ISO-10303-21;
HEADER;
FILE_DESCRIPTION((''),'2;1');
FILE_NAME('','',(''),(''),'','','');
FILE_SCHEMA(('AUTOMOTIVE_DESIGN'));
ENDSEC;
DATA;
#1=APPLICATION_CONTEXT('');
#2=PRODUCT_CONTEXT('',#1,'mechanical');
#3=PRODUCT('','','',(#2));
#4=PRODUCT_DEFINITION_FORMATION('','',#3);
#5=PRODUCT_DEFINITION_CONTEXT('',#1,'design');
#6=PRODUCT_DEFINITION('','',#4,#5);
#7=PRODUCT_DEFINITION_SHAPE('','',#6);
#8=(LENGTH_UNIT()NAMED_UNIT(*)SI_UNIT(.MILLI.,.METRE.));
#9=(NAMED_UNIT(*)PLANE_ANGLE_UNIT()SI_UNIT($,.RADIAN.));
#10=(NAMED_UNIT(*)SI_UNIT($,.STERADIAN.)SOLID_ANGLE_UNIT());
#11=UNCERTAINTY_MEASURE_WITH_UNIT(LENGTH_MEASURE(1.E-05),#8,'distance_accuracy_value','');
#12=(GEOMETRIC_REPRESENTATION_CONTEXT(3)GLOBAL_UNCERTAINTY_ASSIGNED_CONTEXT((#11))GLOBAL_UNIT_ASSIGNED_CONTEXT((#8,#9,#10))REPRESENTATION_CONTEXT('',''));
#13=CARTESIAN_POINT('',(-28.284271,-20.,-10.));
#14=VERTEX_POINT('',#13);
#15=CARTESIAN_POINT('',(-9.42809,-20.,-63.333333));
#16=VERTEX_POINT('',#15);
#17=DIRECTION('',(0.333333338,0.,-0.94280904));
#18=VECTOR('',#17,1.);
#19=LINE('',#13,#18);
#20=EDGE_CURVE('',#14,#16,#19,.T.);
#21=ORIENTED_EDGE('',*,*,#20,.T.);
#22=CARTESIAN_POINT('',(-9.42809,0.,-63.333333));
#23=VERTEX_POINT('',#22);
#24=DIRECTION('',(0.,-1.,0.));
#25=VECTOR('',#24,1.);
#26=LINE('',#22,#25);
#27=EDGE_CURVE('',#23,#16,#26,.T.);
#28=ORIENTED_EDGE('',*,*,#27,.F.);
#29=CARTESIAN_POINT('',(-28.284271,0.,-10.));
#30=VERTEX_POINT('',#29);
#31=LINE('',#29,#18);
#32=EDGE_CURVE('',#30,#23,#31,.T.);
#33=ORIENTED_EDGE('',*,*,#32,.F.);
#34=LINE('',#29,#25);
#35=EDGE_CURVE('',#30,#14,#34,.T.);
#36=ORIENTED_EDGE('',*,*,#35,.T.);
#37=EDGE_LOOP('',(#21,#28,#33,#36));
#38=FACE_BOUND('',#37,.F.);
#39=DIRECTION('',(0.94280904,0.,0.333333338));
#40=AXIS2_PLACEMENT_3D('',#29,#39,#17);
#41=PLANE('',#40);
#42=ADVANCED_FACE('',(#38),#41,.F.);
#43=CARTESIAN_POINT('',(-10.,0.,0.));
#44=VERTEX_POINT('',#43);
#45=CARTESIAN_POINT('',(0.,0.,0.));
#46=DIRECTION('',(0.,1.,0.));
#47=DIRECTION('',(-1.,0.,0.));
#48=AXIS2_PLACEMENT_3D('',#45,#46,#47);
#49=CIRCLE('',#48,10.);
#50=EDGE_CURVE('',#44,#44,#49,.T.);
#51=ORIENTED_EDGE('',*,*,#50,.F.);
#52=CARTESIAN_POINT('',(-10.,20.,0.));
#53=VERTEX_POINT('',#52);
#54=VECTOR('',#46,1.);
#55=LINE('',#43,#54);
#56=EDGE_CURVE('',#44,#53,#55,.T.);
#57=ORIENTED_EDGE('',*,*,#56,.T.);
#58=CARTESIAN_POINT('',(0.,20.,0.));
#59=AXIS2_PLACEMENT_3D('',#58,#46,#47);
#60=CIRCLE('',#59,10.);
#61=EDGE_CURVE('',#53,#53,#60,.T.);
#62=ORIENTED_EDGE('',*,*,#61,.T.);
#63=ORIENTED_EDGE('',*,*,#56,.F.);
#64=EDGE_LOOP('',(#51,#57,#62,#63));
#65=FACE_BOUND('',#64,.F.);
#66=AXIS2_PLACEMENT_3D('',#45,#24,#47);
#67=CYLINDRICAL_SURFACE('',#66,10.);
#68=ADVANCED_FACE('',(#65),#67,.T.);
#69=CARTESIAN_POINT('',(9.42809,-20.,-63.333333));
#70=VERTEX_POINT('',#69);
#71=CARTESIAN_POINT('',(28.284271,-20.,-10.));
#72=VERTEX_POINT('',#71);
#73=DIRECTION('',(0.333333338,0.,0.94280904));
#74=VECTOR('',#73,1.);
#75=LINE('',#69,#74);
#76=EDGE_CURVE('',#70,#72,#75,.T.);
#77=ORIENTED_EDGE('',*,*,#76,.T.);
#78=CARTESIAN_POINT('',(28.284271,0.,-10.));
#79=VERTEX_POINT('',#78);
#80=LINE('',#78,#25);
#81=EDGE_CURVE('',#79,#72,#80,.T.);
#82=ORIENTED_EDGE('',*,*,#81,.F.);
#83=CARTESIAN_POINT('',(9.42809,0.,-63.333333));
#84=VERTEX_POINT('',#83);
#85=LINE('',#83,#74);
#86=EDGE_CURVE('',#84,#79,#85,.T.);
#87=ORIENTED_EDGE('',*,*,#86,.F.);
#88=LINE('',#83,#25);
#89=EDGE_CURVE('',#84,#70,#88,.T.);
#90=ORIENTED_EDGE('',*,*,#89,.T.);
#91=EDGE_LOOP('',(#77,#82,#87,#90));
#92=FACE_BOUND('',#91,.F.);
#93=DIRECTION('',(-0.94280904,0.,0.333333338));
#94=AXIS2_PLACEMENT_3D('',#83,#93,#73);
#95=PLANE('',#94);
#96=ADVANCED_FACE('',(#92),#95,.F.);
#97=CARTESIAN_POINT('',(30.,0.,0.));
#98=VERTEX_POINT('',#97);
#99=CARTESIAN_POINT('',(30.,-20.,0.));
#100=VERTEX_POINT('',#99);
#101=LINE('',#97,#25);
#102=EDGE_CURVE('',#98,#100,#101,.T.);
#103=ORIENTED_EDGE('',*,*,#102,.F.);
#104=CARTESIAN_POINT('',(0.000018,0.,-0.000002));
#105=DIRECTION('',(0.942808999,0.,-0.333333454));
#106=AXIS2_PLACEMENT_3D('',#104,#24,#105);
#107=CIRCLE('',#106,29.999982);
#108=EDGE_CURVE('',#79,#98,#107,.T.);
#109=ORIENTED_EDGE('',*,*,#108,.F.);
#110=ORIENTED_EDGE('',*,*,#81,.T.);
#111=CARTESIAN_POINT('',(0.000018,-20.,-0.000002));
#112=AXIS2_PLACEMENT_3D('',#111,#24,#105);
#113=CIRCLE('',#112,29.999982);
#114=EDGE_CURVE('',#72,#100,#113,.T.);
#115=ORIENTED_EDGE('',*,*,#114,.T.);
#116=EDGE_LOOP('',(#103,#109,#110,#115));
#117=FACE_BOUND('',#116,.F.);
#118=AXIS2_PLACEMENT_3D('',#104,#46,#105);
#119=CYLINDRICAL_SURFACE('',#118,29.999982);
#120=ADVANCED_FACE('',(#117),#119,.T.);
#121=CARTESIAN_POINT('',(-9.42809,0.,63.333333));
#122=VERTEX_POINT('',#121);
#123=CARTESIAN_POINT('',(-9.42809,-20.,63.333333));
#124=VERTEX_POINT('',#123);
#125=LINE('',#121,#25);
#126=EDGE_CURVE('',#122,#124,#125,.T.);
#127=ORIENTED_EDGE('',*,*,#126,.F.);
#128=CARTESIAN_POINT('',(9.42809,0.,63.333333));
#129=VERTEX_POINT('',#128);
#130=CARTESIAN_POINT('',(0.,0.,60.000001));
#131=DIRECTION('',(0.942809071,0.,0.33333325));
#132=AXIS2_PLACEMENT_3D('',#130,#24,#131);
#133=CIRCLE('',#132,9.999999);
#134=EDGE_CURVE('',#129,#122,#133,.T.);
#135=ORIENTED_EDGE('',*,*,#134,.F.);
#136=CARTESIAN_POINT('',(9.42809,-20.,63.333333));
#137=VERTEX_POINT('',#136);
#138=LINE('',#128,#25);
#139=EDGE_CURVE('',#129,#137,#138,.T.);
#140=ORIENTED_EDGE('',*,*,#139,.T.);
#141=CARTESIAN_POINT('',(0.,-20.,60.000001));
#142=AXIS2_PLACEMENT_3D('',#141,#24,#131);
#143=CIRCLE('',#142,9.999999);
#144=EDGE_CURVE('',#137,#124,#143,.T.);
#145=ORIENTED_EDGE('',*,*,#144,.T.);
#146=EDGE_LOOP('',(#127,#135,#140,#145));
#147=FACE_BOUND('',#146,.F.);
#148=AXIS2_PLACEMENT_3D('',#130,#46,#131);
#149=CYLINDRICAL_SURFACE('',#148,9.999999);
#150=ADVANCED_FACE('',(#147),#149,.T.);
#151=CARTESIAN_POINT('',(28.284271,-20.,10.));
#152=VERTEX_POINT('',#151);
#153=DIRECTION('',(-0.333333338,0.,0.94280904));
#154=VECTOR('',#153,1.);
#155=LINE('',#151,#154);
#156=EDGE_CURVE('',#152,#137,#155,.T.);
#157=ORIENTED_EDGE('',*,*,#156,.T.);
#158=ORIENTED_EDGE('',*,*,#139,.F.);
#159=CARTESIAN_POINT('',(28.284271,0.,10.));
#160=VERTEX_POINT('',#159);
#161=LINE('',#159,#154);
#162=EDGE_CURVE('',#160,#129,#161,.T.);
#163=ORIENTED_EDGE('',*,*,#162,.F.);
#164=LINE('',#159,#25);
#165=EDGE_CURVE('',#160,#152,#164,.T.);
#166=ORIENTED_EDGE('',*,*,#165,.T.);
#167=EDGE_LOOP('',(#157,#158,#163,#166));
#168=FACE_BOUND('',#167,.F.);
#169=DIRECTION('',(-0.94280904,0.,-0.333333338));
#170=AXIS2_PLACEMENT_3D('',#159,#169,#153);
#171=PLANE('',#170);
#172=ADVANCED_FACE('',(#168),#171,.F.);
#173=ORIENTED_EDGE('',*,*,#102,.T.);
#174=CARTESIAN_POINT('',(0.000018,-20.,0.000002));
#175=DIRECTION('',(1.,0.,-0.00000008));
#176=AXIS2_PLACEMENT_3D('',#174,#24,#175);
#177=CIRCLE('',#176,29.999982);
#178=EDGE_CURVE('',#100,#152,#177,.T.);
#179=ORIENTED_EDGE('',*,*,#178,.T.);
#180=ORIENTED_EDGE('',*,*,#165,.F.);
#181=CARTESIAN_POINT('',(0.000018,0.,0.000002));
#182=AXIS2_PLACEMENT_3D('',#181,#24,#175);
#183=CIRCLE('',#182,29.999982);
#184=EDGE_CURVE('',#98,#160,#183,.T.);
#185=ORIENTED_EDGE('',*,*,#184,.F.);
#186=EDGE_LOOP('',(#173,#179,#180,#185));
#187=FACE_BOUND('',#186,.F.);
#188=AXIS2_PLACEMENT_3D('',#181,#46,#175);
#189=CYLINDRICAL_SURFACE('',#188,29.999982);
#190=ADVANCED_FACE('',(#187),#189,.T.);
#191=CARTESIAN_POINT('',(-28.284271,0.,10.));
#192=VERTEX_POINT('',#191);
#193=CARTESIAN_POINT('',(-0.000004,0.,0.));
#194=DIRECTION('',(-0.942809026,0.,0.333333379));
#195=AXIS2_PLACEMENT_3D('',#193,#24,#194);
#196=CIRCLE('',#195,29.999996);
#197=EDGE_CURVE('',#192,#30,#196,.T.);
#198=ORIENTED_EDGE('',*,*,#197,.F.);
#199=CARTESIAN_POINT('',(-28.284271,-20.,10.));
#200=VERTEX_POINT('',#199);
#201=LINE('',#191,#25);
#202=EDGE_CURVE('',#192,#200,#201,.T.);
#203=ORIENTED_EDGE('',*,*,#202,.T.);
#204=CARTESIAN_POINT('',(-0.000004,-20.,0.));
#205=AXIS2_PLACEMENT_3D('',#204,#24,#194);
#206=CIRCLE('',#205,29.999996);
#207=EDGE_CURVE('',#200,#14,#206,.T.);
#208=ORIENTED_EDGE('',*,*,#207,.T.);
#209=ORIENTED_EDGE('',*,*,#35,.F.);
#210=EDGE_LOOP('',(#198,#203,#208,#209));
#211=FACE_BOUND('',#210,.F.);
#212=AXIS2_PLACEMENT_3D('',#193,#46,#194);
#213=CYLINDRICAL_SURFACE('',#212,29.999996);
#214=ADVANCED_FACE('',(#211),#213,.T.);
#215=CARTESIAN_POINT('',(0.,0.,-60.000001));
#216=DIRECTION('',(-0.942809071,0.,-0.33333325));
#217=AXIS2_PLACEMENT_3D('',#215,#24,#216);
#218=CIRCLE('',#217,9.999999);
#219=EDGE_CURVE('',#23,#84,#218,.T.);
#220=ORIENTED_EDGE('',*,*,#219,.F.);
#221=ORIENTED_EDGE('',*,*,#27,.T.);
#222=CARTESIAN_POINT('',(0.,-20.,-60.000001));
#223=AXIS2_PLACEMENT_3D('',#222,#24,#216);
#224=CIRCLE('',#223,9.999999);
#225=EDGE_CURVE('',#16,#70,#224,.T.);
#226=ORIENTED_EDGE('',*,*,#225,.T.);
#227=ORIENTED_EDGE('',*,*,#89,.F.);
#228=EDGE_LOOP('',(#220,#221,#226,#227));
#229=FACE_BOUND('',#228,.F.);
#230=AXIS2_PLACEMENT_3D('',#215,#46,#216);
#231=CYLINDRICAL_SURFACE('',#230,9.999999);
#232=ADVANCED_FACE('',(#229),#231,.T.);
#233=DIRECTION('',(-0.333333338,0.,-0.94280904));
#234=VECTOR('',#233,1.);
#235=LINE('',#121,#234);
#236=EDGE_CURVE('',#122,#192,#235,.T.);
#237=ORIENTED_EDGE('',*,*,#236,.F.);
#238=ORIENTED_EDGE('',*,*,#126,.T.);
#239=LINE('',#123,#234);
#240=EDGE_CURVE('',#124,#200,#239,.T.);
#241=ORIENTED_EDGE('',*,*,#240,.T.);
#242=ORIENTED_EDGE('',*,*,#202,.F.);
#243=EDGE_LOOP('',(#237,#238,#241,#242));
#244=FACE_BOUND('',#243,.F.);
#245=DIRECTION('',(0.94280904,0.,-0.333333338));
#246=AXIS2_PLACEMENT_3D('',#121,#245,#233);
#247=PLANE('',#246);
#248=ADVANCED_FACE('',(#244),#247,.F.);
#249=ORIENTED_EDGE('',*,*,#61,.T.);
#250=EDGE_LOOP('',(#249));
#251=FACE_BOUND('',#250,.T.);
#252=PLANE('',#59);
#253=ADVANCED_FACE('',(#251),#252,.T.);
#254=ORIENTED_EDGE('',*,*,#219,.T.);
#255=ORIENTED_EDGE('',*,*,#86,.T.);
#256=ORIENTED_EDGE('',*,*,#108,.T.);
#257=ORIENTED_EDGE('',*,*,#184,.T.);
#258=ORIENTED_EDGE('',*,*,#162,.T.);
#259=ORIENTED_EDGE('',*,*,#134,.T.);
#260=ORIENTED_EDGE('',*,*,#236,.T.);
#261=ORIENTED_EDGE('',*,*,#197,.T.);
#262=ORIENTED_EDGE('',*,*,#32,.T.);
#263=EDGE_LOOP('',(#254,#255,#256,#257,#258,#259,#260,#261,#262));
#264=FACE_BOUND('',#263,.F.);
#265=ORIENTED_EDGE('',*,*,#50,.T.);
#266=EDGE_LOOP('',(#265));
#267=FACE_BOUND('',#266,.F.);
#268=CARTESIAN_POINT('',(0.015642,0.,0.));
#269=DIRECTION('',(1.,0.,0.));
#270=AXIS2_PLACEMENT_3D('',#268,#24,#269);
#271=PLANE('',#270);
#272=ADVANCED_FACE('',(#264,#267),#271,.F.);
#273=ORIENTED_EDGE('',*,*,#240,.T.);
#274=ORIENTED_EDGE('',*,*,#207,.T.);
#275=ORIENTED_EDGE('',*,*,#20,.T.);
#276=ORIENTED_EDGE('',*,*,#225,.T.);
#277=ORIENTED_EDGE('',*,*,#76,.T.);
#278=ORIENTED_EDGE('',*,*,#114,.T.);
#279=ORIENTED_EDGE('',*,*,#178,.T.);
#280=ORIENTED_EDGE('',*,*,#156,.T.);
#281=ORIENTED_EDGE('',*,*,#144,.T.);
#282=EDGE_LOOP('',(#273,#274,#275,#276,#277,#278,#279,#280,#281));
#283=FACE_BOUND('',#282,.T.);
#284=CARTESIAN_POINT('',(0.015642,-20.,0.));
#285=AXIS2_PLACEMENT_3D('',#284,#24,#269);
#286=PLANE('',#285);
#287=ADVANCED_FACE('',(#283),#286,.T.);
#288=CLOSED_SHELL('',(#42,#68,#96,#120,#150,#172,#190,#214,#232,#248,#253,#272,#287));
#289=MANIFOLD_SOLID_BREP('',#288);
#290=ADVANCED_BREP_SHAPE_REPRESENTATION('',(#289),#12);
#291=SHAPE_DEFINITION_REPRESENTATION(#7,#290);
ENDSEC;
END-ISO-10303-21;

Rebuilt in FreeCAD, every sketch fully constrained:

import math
import FreeCAD as App
import Part
import Sketcher
from FreeCAD import Vector
Q = App.Units.Quantity

doc = App.newDocument("Part")
body = doc.addObject("PartDesign::Body", "Body")

sketch1 = body.newObject("Sketcher::SketchObject", "Sketch")
sketch1.AttachmentSupport = (doc.getObject("XZ_Plane"), [""])
sketch1.MapMode = "FlatFace"
sketch1.addGeometry(Part.ArcOfCircle(Part.Circle(Vector(0, 0, 0), Vector(0, 0, 1), 30), math.radians(-19.47), math.radians(0)), False)
sketch1.addGeometry(Part.ArcOfCircle(Part.Circle(Vector(0, 0, 0), Vector(0, 0, 1), 30), math.radians(0), math.radians(19.47)), False)
sketch1.addGeometry(Part.LineSegment(Vector(28, 10, 0), Vector(9, 63, 0)), False)
sketch1.addGeometry(Part.ArcOfCircle(Part.Circle(Vector(0, 60, 0), Vector(0, 0, 1), 10), math.radians(19), math.radians(161)), False)
sketch1.addGeometry(Part.LineSegment(Vector(-9, 63, 0), Vector(-28, 10, 0)), False)
sketch1.addGeometry(Part.ArcOfCircle(Part.Circle(Vector(0, 0, 0), Vector(0, 0, 1), 30), math.radians(161), math.radians(199)), False)
sketch1.addGeometry(Part.LineSegment(Vector(-28, -10, 0), Vector(-9, -63, 0)), False)
sketch1.addGeometry(Part.ArcOfCircle(Part.Circle(Vector(0, -60, 0), Vector(0, 0, 1), 10), math.radians(-161), math.radians(-19)), False)
sketch1.addGeometry(Part.LineSegment(Vector(9, -63, 0), Vector(28, -10, 0)), False)
sketch1.addConstraint(Sketcher.Constraint("Tangent", 0, 2, 1, 1))
sketch1.addConstraint(Sketcher.Constraint("Tangent", 1, 2, 2, 1))
sketch1.addConstraint(Sketcher.Constraint("Tangent", 2, 2, 3, 1))
sketch1.addConstraint(Sketcher.Constraint("Tangent", 3, 2, 4, 1))
sketch1.addConstraint(Sketcher.Constraint("Tangent", 4, 2, 5, 1))
sketch1.addConstraint(Sketcher.Constraint("Tangent", 5, 2, 6, 1))
sketch1.addConstraint(Sketcher.Constraint("Tangent", 6, 2, 7, 1))
sketch1.addConstraint(Sketcher.Constraint("Tangent", 7, 2, 8, 1))
sketch1.addConstraint(Sketcher.Constraint("Tangent", 8, 2, 0, 1))
sketch1.addConstraint(Sketcher.Constraint("Coincident", 5, 3, -1, 1))
sketch1.addConstraint(Sketcher.Constraint("Equal", 0, 1))
sketch1.addConstraint(Sketcher.Constraint("Equal", 3, 7))
sketch1.addConstraint(Sketcher.Constraint("Symmetric", 3, 3, 7, 3, -1, 1))
sketch1.addConstraint(Sketcher.Constraint("Symmetric", 1, 2, 5, 2, -1, 1))
sketch1.addConstraint(Sketcher.Constraint("Symmetric", 5, 2, 8, 2, -2))
sketch1.addConstraint(Sketcher.Constraint("PointOnObject", 0, 2, -1))
sketch1.addConstraint(Sketcher.Constraint("Radius", 3, Q("9.999999 mm")))
sketch1.addConstraint(Sketcher.Constraint("DistanceY", -1, 1, 3, 3, Q("60.000001 mm")))
sketch1.addConstraint(Sketcher.Constraint("DistanceX", -1, 1, 0, 2, Q("30 mm")))
pad1 = body.newObject("PartDesign::Pad", "Pad")
pad1.Profile = sketch1
pad1.Length = 20

sketch2 = body.newObject("Sketcher::SketchObject", "Sketch001")
sketch2.AttachmentSupport = (doc.getObject("XZ_Plane"), [""])
sketch2.MapMode = "FlatFace"
sketch2.addGeometry(Part.Circle(Vector(0, 0, 0), Vector(0, 0, 1), 10), False)
sketch2.addConstraint(Sketcher.Constraint("Coincident", 0, 3, -1, 1))
sketch2.addConstraint(Sketcher.Constraint("Diameter", 0, Q("20 mm")))
pad2 = body.newObject("PartDesign::Pad", "Pad001")
pad2.Profile = sketch2
pad2.Length = 20
pad2.Reversed = True

doc.recompute()
